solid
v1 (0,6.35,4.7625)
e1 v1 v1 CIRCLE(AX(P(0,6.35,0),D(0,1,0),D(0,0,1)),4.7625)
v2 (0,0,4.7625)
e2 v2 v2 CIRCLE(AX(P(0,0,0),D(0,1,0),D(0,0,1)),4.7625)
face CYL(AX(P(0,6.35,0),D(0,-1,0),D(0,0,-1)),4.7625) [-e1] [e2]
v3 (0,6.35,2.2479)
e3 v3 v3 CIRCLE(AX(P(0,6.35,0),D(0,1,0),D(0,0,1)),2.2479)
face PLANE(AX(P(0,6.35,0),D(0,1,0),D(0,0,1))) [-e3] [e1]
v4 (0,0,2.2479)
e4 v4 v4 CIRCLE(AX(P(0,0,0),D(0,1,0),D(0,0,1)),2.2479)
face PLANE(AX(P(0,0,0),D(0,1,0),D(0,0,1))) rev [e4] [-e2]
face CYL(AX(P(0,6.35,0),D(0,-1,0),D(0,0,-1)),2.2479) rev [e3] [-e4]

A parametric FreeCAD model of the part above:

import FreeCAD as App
import Part
import Sketcher

V = App.Vector
Q = App.Units.Quantity

doc = App.newDocument("Part")
params = doc.addObject("Spreadsheet::Sheet", "Params")
for row, (alias, value) in enumerate([
    ("sketch1_diameter", "0.375 in"),
    ("sketch1_diameter2", "0.177 in"),
    ("pad1_length", "0.25 in"),
], start=1):
    params.set(f"A{row}", alias)
    params.set(f"B{row}", "=" + value)
    params.setAlias(f"B{row}", alias)

body = doc.addObject("PartDesign::Body", "Body")

# Sketch on XZ plane
sketch1 = body.newObject("Sketcher::SketchObject", "Sketch")
sketch1.AttachmentSupport = (doc.getObject("XZ_Plane"), [""])
sketch1.MapMode = "FlatFace"
sketch1.addGeometry(Part.Circle(V(0, 0, 0), V(0, 0, 1), 4.7625), False)
sketch1.addGeometry(Part.Circle(V(0, 0, 0), V(0, 0, 1), 2.2479), False)
sketch1.addConstraint(Sketcher.Constraint("Coincident", 0, 3, -1, 1))
sketch1.addConstraint(Sketcher.Constraint("Coincident", 1, 3, -1, 1))
sketch1.addConstraint(Sketcher.Constraint("Diameter", 0, Q("0.375 in")))
sketch1.addConstraint(Sketcher.Constraint("Diameter", 1, Q("0.177 in")))
sketch1.setExpression("Constraints[2]", "Params.sketch1_diameter")
sketch1.setExpression("Constraints[3]", "Params.sketch1_diameter2")
pad1 = body.newObject("PartDesign::Pad", "Pad")
pad1.Profile = sketch1
pad1.setExpression("Length", "Params.pad1_length")
pad1.Reversed = True

doc.recompute()
